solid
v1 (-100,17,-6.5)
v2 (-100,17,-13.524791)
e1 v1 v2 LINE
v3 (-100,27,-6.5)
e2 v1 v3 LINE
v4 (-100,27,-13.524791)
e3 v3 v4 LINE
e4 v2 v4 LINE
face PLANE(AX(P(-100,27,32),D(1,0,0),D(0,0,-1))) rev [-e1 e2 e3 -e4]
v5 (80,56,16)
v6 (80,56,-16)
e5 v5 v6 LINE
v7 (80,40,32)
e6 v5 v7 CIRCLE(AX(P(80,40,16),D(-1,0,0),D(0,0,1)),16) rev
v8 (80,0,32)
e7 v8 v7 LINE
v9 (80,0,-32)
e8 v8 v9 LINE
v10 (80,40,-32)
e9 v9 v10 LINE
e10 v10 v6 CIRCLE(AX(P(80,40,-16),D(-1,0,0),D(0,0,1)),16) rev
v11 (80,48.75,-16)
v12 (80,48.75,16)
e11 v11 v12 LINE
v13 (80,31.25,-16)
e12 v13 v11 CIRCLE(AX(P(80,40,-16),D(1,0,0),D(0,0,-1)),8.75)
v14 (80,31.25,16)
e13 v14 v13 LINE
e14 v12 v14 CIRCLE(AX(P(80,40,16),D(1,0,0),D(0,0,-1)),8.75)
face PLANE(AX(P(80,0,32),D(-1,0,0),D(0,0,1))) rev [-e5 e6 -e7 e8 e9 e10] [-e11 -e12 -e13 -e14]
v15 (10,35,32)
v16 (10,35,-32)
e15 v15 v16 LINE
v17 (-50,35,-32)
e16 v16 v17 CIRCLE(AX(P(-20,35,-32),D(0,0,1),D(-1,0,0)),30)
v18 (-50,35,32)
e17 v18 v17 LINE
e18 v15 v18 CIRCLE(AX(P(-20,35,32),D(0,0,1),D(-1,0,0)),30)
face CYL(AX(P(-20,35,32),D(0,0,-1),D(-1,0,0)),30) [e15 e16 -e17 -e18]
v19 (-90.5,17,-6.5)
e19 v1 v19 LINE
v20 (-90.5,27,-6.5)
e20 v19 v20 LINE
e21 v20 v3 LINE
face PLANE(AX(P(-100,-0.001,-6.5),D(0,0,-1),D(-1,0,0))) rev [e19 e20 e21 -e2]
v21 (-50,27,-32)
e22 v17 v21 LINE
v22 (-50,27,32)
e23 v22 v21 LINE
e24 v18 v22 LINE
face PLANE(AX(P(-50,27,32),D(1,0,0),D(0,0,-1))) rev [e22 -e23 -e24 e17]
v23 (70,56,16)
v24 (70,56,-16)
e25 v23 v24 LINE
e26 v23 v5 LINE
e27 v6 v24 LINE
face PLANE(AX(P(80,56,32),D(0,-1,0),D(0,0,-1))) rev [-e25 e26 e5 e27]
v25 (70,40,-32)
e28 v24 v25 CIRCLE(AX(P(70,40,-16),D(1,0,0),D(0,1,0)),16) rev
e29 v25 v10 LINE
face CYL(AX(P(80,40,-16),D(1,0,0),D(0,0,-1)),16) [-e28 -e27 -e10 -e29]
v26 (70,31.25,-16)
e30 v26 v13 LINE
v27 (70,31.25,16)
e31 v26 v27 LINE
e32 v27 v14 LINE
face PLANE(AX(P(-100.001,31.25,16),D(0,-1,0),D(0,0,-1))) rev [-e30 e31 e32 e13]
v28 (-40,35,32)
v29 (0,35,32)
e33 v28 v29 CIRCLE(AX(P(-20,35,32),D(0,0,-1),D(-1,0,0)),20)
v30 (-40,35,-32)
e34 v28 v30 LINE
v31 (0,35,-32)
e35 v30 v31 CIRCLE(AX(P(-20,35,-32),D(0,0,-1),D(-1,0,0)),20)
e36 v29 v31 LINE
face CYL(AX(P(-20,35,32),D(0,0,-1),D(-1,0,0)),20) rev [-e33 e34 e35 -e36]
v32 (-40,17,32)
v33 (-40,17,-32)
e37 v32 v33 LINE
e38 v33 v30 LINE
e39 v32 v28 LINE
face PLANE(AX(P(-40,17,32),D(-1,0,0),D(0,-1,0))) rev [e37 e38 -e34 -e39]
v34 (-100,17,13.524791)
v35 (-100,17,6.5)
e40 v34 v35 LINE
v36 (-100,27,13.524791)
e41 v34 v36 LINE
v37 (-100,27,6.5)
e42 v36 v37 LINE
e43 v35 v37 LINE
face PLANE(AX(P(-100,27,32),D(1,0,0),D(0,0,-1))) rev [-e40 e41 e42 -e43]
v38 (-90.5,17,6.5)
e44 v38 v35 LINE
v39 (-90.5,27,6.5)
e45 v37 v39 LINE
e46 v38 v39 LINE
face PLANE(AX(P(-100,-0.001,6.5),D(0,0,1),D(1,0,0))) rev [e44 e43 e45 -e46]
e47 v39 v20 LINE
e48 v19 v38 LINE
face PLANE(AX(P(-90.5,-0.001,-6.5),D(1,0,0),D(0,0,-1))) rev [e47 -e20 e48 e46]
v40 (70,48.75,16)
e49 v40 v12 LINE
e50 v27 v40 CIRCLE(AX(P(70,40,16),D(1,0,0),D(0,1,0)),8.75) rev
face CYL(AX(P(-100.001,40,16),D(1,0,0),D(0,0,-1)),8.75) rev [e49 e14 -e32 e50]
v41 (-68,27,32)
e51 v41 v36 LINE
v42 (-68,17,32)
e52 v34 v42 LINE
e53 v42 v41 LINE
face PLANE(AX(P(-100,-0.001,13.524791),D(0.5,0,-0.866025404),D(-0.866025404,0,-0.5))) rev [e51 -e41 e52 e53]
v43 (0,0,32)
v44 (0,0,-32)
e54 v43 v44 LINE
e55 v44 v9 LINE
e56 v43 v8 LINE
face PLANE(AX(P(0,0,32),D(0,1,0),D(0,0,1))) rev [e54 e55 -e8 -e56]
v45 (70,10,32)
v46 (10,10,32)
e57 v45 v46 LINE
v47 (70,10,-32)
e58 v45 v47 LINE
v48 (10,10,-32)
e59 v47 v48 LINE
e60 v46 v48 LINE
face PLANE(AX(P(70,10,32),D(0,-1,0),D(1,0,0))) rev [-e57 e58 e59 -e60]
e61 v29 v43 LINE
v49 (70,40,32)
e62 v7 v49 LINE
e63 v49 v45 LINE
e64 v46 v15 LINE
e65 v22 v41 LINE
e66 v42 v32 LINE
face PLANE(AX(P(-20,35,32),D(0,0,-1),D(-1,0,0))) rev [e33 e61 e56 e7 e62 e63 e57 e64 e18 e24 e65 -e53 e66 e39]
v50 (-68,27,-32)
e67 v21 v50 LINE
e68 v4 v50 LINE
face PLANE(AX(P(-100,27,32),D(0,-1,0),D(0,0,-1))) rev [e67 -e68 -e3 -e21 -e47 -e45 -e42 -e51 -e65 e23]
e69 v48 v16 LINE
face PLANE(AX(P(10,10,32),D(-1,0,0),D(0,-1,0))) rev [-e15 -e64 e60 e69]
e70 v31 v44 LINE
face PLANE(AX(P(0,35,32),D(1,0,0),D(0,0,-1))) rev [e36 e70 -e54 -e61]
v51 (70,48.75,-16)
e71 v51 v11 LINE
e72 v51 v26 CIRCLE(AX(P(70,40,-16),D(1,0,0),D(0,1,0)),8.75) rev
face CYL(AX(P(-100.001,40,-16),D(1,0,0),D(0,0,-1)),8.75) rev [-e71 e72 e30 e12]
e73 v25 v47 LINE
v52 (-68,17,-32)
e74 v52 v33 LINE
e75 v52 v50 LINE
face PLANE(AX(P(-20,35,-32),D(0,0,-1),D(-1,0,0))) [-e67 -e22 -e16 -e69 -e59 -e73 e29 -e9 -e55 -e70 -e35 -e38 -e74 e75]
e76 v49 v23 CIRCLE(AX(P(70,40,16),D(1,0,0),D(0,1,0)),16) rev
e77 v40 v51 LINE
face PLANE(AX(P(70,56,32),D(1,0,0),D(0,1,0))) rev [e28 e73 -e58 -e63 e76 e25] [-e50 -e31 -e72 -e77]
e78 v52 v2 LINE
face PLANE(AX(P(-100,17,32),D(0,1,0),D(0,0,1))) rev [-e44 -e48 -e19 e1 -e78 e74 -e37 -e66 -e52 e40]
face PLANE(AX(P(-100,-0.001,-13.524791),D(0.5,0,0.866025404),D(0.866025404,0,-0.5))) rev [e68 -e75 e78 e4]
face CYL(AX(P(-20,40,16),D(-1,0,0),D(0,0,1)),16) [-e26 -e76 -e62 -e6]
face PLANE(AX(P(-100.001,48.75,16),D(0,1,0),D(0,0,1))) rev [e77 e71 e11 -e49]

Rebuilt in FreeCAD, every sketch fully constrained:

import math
import FreeCAD as App
import Part
import Sketcher

V = App.Vector
Q = App.Units.Quantity


def edges_at(feature, points):
    """Names of the edges that pass closest to the given points."""
    edges = feature.Shape.Edges
    near = lambda p: min(range(len(edges)), key=lambda i: edges[i].distToShape(Part.Vertex(*p))[0])
    return sorted({f"Edge{near(p) + 1}" for p in points})


def add_polygon(sketch, points):
    """Adds a closed chain of lines whose ends are joined by coincident constraints."""
    first, n = sketch.GeometryCount, len(points)
    for a, b in zip(points, points[1:] + points[:1]):
        sketch.addGeometry(Part.LineSegment(App.Vector(*a, 0), App.Vector(*b, 0)), False)
    for i in range(n):
        sketch.addConstraint(Sketcher.Constraint("Coincident", first + i, 2, first + (i + 1) % n, 1))

doc = App.newDocument("Part")
body = doc.addObject("PartDesign::Body", "Body")

# Sketch on XY plane
sketch1 = body.newObject("Sketcher::SketchObject", "Sketch")
sketch1.AttachmentSupport = (doc.getObject("XY_Plane"), [""])
sketch1.MapMode = "FlatFace"
sketch1.addGeometry([
    Part.LineSegment(V(-100, 27, 0), V(-100, 17, 0)),  # 0
    Part.LineSegment(V(-100, 17, 0), V(-40, 17, 0)),  # 1
    Part.LineSegment(V(-40, 17, 0), V(-40, 35, 0)),  # 2
    Part.ArcOfCircle(Part.Circle(V(-20, 35, 0), V(0, 0, 1), 20), math.radians(0), math.radians(180)),  # 3
    Part.LineSegment(V(0, 35, 0), V(0, 0, 0)),  # 4
    Part.LineSegment(V(0, 0, 0), V(80, 0, 0)),  # 5
    Part.LineSegment(V(80, 0, 0), V(80, 56, 0)),  # 6
    Part.LineSegment(V(80, 56, 0), V(70, 56, 0)),  # 7
    Part.LineSegment(V(70, 56, 0), V(70, 10, 0)),  # 8
    Part.LineSegment(V(70, 10, 0), V(10, 10, 0)),  # 9
    Part.LineSegment(V(10, 10, 0), V(10, 35, 0)),  # 10
    Part.ArcOfCircle(Part.Circle(V(-20, 35, 0), V(0, 0, 1), 30), math.radians(0), math.radians(180)),  # 11
    Part.LineSegment(V(-50, 35, 0), V(-50, 27, 0)),  # 12
    Part.LineSegment(V(-50, 27, 0), V(-100, 27, 0)),  # 13
], False)
sketch1.addConstraint([
    Sketcher.Constraint("Coincident", 0, 2, 1, 1),
    Sketcher.Constraint("Coincident", 1, 2, 2, 1),
    Sketcher.Constraint("Tangent", 2, 2, 3, 2),
    Sketcher.Constraint("Tangent", 3, 1, 4, 1),
    Sketcher.Constraint("Coincident", 4, 2, 5, 1),
    Sketcher.Constraint("Coincident", 5, 2, 6, 1),
    Sketcher.Constraint("Coincident", 6, 2, 7, 1),
    Sketcher.Constraint("Coincident", 7, 2, 8, 1),
    Sketcher.Constraint("Coincident", 8, 2, 9, 1),
    Sketcher.Constraint("Coincident", 9, 2, 10, 1),
    Sketcher.Constraint("Tangent", 10, 2, 11, 1),
    Sketcher.Constraint("Tangent", 11, 2, 12, 1),
    Sketcher.Constraint("Coincident", 12, 2, 13, 1),
    Sketcher.Constraint("Coincident", 13, 2, 0, 1),
    Sketcher.Constraint("Vertical", 0),
    Sketcher.Constraint("Horizontal", 1),
    Sketcher.Constraint("Vertical", 2),
    Sketcher.Constraint("Vertical", 4),
    Sketcher.Constraint("Horizontal", 5),
    Sketcher.Constraint("Vertical", 6),
    Sketcher.Constraint("Horizontal", 7),
    Sketcher.Constraint("Vertical", 8),
    Sketcher.Constraint("Horizontal", 9),
    Sketcher.Constraint("Vertical", 10),
    Sketcher.Constraint("Vertical", 12),
    Sketcher.Constraint("Horizontal", 13),
    Sketcher.Constraint("Coincident", 4, 2, -1, 1),
    Sketcher.Constraint("Coincident", 11, 3, 3, 3),
    Sketcher.Constraint("Equal", 1, 9),
    Sketcher.Constraint("Equal", 7, 0),
    Sketcher.Constraint("Radius", 3, Q("20 mm")),
    Sketcher.Constraint("Radius", 11, Q("30 mm")),
    Sketcher.Constraint("DistanceX", 1, 1, 1, 2, Q("60 mm")),
    Sketcher.Constraint("DistanceX", 5, 1, 5, 2, Q("80 mm")),
    Sketcher.Constraint("DistanceY", 2, 1, 2, 2, Q("18 mm")),
    Sketcher.Constraint("DistanceY", 4, 2, 4, 1, Q("35 mm")),
    Sketcher.Constraint("DistanceY", 6, 1, 6, 2, Q("56 mm")),
    Sketcher.Constraint("DistanceY", 8, 2, 8, 1, Q("46 mm")),
])
pad1 = body.newObject("PartDesign::Pad", "Pad")
pad1.Profile = sketch1
pad1.Length = 64
pad1.Midplane = True

# Sketch on XZ plane
sketch2 = body.newObject("Sketcher::SketchObject", "Sketch001")
sketch2.AttachmentSupport = (doc.getObject("XZ_Plane"), [""])
sketch2.MapMode = "FlatFace"
sketch2.AttachmentOffset = App.Placement(V(0, 0, -27), App.Rotation())
add_polygon(sketch2, [(-100, -13.524791), (-68, -32), (-100, -32)])  # lines 0-2
sketch2.addConstraint([
    Sketcher.Constraint("Horizontal", 1),
    Sketcher.Constraint("Vertical", 2),
    Sketcher.Constraint("DistanceX", 1, 2, 1, 1, Q("32 mm")),
    Sketcher.Constraint("Angle", 0, Q("-30 deg")),
    Sketcher.Constraint("DistanceX", 0, 2, -1, 1, Q("68 mm")),
    Sketcher.Constraint("DistanceY", 0, 2, -1, 1, Q("32 mm")),
])
pocket1 = body.newObject("PartDesign::Pocket", "Pocket")
pocket1.Profile = sketch2
pocket1.Type = "UpToFirst"
pocket1.Reversed = True

# Sketch on XZ plane
sketch3 = body.newObject("Sketcher::SketchObject", "Sketch002")
sketch3.AttachmentSupport = (doc.getObject("XZ_Plane"), [""])
sketch3.MapMode = "FlatFace"
sketch3.AttachmentOffset = App.Placement(V(0, 0, -27), App.Rotation())
add_polygon(sketch3, [(-100, -6.5), (-100, 6.5), (-90.5, 6.5), (-90.5, -6.5)])  # lines 0-3
sketch3.addConstraint([
    Sketcher.Constraint("Vertical", 0),
    Sketcher.Constraint("Horizontal", 1),
    Sketcher.Constraint("Vertical", 2),
    Sketcher.Constraint("Horizontal", 3),
    Sketcher.Constraint("DistanceY", 0, 1, 0, 2, Q("13 mm")),
    Sketcher.Constraint("DistanceX", 1, 1, 1, 2, Q("9.5 mm")),
    Sketcher.Constraint("DistanceX", 0, 2, -1, 1, Q("100 mm")),
    Sketcher.Constraint("DistanceY", -1, 1, 0, 2, Q("6.5 mm")),
])
pocket2 = body.newObject("PartDesign::Pocket", "Pocket001")
pocket2.Profile = sketch3
pocket2.Type = "UpToFirst"
pocket2.Reversed = True

# Sketch on XZ plane
sketch4 = body.newObject("Sketcher::SketchObject", "Sketch003")
sketch4.AttachmentSupport = (doc.getObject("XZ_Plane"), [""])
sketch4.MapMode = "FlatFace"
sketch4.AttachmentOffset = App.Placement(V(0, 0, -27), App.Rotation())
add_polygon(sketch4, [(-100, 13.524791), (-100, 32), (-68, 32)])  # lines 0-2
sketch4.addConstraint([
    Sketcher.Constraint("Vertical", 0),
    Sketcher.Constraint("Horizontal", 1),
    Sketcher.Constraint("DistanceX", 1, 1, 1, 2, Q("32 mm")),
    Sketcher.Constraint("Angle", 2, Q("-150 deg")),
    Sketcher.Constraint("DistanceX", 0, 2, -1, 1, Q("100 mm")),
    Sketcher.Constraint("DistanceY", -1, 1, 0, 2, Q("32 mm")),
])
pocket3 = body.newObject("PartDesign::Pocket", "Pocket002")
pocket3.Profile = sketch4
pocket3.Type = "UpToFirst"
pocket3.Reversed = True

# Sketch on YZ plane
sketch5 = body.newObject("Sketcher::SketchObject", "Sketch004")
sketch5.AttachmentSupport = (doc.getObject("YZ_Plane"), [""])
sketch5.MapMode = "FlatFace"
sketch5.AttachmentOffset = App.Placement(V(0, 0, 80), App.Rotation())
sketch5.addGeometry([
    Part.LineSegment(V(48.75, -16, 0), V(48.75, 16, 0)),
    Part.ArcOfCircle(Part.Circle(V(40, 16, 0), V(0, 0, 1), 8.75), math.radians(0), math.radians(180)),
    Part.LineSegment(V(31.25, 16, 0), V(31.25, -16, 0)),
    Part.ArcOfCircle(Part.Circle(V(40, -16, 0), V(0, 0, 1), 8.75), math.radians(180), math.radians(360)),
], False)
sketch5.addConstraint([
    Sketcher.Constraint("Tangent", 0, 2, 1, 1),
    Sketcher.Constraint("Tangent", 1, 2, 2, 1),
    Sketcher.Constraint("Tangent", 2, 2, 3, 1),
    Sketcher.Constraint("Tangent", 3, 2, 0, 1),
    Sketcher.Constraint("Vertical", 0),
    Sketcher.Constraint("Vertical", 2),
    Sketcher.Constraint("DistanceY", 0, 1, 0, 2, Q("32 mm")),
    Sketcher.Constraint("Radius", 1, Q("8.75 mm")),
    Sketcher.Constraint("DistanceX", -1, 1, 1, 3, Q("40 mm")),
    Sketcher.Constraint("DistanceY", -1, 1, 1, 3, Q("16 mm")),
])
pocket4 = body.newObject("PartDesign::Pocket", "Pocket003")
pocket4.Profile = sketch5
pocket4.Type = "UpToFirst"
doc.recompute()

fillet = body.newObject("PartDesign::Fillet", "Fillet")
fillet.Base = (pocket4, edges_at(pocket4, [(75, 56, -32), (75, 56, 32)]))
fillet.Radius = 16

doc.recompute()
